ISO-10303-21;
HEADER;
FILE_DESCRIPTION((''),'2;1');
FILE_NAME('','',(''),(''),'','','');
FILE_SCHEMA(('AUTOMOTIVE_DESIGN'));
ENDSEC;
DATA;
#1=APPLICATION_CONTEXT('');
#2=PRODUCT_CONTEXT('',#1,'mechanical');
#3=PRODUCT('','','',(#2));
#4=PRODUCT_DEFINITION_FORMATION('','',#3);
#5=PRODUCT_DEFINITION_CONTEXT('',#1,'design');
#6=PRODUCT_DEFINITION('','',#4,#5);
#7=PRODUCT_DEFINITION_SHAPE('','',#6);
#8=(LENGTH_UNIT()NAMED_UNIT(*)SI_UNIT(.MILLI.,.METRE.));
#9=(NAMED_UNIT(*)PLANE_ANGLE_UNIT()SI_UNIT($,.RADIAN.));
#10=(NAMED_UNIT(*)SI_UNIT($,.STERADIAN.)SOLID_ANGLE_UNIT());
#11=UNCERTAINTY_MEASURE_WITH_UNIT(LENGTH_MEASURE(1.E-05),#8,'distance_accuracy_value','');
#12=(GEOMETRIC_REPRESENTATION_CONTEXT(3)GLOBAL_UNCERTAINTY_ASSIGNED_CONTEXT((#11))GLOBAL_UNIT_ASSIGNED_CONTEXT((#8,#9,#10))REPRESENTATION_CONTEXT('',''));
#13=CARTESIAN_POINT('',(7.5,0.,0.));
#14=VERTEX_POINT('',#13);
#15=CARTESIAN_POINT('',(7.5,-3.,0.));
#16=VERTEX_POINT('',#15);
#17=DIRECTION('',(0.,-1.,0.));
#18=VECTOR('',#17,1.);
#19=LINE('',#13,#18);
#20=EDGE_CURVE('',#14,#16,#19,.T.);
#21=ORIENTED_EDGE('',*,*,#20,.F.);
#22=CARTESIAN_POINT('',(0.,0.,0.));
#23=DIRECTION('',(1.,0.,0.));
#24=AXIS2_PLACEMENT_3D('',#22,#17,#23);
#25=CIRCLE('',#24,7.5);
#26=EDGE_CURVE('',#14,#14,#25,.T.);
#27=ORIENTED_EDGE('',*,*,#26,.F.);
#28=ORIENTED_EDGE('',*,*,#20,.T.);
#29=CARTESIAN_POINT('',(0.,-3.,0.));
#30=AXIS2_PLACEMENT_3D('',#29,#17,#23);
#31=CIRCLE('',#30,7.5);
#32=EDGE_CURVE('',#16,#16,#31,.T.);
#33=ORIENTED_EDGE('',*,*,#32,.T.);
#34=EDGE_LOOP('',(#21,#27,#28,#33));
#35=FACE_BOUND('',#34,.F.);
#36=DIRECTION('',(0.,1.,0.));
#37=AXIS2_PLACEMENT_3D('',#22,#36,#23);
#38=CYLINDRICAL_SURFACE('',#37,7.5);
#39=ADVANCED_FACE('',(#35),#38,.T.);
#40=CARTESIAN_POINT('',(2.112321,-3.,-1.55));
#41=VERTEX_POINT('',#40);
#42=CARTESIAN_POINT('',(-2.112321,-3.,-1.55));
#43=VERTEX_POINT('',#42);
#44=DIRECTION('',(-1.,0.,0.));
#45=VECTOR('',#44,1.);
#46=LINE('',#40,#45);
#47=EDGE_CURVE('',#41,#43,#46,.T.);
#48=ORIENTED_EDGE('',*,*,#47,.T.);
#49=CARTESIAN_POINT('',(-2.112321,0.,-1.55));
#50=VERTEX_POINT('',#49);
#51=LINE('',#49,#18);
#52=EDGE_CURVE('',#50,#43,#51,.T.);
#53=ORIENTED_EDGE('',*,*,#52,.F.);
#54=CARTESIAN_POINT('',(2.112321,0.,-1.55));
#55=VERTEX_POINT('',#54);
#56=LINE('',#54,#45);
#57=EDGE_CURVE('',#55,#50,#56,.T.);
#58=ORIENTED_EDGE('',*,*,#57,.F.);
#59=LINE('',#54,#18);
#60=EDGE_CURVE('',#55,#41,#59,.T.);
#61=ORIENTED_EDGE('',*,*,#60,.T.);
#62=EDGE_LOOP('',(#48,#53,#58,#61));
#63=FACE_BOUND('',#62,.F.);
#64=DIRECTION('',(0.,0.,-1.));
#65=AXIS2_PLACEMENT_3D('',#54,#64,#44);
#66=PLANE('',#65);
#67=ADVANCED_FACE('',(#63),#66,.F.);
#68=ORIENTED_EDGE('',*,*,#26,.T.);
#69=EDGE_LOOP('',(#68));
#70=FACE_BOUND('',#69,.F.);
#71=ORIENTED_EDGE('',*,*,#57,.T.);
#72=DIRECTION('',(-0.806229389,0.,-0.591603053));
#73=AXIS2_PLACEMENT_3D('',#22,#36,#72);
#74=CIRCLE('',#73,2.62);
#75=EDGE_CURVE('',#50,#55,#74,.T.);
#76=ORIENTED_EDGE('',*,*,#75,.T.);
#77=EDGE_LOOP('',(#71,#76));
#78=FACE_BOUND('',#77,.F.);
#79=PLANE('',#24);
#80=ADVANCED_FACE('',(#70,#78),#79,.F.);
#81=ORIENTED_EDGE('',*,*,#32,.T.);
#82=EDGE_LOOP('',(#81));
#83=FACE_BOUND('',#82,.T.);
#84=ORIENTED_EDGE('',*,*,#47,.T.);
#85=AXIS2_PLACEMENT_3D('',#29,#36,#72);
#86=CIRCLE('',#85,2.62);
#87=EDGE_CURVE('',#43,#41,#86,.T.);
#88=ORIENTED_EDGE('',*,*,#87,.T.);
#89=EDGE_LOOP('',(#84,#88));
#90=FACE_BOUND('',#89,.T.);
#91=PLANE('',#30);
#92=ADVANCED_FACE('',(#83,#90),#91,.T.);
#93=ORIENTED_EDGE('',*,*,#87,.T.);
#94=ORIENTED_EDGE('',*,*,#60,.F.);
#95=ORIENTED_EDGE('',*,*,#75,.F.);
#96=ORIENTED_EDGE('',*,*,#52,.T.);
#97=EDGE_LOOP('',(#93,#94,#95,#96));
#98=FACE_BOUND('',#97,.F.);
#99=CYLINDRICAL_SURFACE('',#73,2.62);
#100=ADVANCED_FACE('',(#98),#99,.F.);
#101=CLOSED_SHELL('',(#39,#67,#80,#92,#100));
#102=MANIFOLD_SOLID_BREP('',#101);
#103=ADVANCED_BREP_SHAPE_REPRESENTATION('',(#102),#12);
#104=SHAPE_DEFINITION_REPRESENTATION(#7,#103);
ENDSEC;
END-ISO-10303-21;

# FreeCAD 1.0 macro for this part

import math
import FreeCAD as App
import Part
import Sketcher

V = App.Vector
Q = App.Units.Quantity

doc = App.newDocument("Part")
body = doc.addObject("PartDesign::Body", "Body")

sketch1 = body.newObject("Sketcher::SketchObject", "Sketch")
sketch1.AttachmentSupport = (doc.getObject("XZ_Plane"), [""])
sketch1.MapMode = "FlatFace"
sketch1.addGeometry(Part.Circle(V(0, 0, 0), V(0, 0, 1), 7.5), False)
sketch1.addGeometry(Part.ArcOfCircle(Part.Circle(V(0, 0, 0), V(0, 0, 1), 2.62), math.radians(-36.270848), math.radians(216.270848)), False)
sketch1.addGeometry(Part.LineSegment(V(2.112321, -1.55, 0), V(-2.112321, -1.55, 0)), False)
sketch1.addConstraint(Sketcher.Constraint("Coincident", 1, 1, 2, 1))
sketch1.addConstraint(Sketcher.Constraint("Coincident", 2, 2, 1, 2))
sketch1.addConstraint(Sketcher.Constraint("Horizontal", 2))
sketch1.addConstraint(Sketcher.Constraint("Coincident", 0, 3, -1, 1))
sketch1.addConstraint(Sketcher.Constraint("Coincident", 1, 3, -1, 1))
sketch1.addConstraint(Sketcher.Constraint("Diameter", 0, Q("15 mm")))
sketch1.addConstraint(Sketcher.Constraint("Radius", 1, Q("2.62 mm")))
sketch1.addConstraint(Sketcher.Constraint("DistanceY", 1, 1, -1, 1, Q("1.55 mm")))
pad1 = body.newObject("PartDesign::Pad", "Pad")
pad1.Profile = sketch1
pad1.Length = 3

doc.recompute()
